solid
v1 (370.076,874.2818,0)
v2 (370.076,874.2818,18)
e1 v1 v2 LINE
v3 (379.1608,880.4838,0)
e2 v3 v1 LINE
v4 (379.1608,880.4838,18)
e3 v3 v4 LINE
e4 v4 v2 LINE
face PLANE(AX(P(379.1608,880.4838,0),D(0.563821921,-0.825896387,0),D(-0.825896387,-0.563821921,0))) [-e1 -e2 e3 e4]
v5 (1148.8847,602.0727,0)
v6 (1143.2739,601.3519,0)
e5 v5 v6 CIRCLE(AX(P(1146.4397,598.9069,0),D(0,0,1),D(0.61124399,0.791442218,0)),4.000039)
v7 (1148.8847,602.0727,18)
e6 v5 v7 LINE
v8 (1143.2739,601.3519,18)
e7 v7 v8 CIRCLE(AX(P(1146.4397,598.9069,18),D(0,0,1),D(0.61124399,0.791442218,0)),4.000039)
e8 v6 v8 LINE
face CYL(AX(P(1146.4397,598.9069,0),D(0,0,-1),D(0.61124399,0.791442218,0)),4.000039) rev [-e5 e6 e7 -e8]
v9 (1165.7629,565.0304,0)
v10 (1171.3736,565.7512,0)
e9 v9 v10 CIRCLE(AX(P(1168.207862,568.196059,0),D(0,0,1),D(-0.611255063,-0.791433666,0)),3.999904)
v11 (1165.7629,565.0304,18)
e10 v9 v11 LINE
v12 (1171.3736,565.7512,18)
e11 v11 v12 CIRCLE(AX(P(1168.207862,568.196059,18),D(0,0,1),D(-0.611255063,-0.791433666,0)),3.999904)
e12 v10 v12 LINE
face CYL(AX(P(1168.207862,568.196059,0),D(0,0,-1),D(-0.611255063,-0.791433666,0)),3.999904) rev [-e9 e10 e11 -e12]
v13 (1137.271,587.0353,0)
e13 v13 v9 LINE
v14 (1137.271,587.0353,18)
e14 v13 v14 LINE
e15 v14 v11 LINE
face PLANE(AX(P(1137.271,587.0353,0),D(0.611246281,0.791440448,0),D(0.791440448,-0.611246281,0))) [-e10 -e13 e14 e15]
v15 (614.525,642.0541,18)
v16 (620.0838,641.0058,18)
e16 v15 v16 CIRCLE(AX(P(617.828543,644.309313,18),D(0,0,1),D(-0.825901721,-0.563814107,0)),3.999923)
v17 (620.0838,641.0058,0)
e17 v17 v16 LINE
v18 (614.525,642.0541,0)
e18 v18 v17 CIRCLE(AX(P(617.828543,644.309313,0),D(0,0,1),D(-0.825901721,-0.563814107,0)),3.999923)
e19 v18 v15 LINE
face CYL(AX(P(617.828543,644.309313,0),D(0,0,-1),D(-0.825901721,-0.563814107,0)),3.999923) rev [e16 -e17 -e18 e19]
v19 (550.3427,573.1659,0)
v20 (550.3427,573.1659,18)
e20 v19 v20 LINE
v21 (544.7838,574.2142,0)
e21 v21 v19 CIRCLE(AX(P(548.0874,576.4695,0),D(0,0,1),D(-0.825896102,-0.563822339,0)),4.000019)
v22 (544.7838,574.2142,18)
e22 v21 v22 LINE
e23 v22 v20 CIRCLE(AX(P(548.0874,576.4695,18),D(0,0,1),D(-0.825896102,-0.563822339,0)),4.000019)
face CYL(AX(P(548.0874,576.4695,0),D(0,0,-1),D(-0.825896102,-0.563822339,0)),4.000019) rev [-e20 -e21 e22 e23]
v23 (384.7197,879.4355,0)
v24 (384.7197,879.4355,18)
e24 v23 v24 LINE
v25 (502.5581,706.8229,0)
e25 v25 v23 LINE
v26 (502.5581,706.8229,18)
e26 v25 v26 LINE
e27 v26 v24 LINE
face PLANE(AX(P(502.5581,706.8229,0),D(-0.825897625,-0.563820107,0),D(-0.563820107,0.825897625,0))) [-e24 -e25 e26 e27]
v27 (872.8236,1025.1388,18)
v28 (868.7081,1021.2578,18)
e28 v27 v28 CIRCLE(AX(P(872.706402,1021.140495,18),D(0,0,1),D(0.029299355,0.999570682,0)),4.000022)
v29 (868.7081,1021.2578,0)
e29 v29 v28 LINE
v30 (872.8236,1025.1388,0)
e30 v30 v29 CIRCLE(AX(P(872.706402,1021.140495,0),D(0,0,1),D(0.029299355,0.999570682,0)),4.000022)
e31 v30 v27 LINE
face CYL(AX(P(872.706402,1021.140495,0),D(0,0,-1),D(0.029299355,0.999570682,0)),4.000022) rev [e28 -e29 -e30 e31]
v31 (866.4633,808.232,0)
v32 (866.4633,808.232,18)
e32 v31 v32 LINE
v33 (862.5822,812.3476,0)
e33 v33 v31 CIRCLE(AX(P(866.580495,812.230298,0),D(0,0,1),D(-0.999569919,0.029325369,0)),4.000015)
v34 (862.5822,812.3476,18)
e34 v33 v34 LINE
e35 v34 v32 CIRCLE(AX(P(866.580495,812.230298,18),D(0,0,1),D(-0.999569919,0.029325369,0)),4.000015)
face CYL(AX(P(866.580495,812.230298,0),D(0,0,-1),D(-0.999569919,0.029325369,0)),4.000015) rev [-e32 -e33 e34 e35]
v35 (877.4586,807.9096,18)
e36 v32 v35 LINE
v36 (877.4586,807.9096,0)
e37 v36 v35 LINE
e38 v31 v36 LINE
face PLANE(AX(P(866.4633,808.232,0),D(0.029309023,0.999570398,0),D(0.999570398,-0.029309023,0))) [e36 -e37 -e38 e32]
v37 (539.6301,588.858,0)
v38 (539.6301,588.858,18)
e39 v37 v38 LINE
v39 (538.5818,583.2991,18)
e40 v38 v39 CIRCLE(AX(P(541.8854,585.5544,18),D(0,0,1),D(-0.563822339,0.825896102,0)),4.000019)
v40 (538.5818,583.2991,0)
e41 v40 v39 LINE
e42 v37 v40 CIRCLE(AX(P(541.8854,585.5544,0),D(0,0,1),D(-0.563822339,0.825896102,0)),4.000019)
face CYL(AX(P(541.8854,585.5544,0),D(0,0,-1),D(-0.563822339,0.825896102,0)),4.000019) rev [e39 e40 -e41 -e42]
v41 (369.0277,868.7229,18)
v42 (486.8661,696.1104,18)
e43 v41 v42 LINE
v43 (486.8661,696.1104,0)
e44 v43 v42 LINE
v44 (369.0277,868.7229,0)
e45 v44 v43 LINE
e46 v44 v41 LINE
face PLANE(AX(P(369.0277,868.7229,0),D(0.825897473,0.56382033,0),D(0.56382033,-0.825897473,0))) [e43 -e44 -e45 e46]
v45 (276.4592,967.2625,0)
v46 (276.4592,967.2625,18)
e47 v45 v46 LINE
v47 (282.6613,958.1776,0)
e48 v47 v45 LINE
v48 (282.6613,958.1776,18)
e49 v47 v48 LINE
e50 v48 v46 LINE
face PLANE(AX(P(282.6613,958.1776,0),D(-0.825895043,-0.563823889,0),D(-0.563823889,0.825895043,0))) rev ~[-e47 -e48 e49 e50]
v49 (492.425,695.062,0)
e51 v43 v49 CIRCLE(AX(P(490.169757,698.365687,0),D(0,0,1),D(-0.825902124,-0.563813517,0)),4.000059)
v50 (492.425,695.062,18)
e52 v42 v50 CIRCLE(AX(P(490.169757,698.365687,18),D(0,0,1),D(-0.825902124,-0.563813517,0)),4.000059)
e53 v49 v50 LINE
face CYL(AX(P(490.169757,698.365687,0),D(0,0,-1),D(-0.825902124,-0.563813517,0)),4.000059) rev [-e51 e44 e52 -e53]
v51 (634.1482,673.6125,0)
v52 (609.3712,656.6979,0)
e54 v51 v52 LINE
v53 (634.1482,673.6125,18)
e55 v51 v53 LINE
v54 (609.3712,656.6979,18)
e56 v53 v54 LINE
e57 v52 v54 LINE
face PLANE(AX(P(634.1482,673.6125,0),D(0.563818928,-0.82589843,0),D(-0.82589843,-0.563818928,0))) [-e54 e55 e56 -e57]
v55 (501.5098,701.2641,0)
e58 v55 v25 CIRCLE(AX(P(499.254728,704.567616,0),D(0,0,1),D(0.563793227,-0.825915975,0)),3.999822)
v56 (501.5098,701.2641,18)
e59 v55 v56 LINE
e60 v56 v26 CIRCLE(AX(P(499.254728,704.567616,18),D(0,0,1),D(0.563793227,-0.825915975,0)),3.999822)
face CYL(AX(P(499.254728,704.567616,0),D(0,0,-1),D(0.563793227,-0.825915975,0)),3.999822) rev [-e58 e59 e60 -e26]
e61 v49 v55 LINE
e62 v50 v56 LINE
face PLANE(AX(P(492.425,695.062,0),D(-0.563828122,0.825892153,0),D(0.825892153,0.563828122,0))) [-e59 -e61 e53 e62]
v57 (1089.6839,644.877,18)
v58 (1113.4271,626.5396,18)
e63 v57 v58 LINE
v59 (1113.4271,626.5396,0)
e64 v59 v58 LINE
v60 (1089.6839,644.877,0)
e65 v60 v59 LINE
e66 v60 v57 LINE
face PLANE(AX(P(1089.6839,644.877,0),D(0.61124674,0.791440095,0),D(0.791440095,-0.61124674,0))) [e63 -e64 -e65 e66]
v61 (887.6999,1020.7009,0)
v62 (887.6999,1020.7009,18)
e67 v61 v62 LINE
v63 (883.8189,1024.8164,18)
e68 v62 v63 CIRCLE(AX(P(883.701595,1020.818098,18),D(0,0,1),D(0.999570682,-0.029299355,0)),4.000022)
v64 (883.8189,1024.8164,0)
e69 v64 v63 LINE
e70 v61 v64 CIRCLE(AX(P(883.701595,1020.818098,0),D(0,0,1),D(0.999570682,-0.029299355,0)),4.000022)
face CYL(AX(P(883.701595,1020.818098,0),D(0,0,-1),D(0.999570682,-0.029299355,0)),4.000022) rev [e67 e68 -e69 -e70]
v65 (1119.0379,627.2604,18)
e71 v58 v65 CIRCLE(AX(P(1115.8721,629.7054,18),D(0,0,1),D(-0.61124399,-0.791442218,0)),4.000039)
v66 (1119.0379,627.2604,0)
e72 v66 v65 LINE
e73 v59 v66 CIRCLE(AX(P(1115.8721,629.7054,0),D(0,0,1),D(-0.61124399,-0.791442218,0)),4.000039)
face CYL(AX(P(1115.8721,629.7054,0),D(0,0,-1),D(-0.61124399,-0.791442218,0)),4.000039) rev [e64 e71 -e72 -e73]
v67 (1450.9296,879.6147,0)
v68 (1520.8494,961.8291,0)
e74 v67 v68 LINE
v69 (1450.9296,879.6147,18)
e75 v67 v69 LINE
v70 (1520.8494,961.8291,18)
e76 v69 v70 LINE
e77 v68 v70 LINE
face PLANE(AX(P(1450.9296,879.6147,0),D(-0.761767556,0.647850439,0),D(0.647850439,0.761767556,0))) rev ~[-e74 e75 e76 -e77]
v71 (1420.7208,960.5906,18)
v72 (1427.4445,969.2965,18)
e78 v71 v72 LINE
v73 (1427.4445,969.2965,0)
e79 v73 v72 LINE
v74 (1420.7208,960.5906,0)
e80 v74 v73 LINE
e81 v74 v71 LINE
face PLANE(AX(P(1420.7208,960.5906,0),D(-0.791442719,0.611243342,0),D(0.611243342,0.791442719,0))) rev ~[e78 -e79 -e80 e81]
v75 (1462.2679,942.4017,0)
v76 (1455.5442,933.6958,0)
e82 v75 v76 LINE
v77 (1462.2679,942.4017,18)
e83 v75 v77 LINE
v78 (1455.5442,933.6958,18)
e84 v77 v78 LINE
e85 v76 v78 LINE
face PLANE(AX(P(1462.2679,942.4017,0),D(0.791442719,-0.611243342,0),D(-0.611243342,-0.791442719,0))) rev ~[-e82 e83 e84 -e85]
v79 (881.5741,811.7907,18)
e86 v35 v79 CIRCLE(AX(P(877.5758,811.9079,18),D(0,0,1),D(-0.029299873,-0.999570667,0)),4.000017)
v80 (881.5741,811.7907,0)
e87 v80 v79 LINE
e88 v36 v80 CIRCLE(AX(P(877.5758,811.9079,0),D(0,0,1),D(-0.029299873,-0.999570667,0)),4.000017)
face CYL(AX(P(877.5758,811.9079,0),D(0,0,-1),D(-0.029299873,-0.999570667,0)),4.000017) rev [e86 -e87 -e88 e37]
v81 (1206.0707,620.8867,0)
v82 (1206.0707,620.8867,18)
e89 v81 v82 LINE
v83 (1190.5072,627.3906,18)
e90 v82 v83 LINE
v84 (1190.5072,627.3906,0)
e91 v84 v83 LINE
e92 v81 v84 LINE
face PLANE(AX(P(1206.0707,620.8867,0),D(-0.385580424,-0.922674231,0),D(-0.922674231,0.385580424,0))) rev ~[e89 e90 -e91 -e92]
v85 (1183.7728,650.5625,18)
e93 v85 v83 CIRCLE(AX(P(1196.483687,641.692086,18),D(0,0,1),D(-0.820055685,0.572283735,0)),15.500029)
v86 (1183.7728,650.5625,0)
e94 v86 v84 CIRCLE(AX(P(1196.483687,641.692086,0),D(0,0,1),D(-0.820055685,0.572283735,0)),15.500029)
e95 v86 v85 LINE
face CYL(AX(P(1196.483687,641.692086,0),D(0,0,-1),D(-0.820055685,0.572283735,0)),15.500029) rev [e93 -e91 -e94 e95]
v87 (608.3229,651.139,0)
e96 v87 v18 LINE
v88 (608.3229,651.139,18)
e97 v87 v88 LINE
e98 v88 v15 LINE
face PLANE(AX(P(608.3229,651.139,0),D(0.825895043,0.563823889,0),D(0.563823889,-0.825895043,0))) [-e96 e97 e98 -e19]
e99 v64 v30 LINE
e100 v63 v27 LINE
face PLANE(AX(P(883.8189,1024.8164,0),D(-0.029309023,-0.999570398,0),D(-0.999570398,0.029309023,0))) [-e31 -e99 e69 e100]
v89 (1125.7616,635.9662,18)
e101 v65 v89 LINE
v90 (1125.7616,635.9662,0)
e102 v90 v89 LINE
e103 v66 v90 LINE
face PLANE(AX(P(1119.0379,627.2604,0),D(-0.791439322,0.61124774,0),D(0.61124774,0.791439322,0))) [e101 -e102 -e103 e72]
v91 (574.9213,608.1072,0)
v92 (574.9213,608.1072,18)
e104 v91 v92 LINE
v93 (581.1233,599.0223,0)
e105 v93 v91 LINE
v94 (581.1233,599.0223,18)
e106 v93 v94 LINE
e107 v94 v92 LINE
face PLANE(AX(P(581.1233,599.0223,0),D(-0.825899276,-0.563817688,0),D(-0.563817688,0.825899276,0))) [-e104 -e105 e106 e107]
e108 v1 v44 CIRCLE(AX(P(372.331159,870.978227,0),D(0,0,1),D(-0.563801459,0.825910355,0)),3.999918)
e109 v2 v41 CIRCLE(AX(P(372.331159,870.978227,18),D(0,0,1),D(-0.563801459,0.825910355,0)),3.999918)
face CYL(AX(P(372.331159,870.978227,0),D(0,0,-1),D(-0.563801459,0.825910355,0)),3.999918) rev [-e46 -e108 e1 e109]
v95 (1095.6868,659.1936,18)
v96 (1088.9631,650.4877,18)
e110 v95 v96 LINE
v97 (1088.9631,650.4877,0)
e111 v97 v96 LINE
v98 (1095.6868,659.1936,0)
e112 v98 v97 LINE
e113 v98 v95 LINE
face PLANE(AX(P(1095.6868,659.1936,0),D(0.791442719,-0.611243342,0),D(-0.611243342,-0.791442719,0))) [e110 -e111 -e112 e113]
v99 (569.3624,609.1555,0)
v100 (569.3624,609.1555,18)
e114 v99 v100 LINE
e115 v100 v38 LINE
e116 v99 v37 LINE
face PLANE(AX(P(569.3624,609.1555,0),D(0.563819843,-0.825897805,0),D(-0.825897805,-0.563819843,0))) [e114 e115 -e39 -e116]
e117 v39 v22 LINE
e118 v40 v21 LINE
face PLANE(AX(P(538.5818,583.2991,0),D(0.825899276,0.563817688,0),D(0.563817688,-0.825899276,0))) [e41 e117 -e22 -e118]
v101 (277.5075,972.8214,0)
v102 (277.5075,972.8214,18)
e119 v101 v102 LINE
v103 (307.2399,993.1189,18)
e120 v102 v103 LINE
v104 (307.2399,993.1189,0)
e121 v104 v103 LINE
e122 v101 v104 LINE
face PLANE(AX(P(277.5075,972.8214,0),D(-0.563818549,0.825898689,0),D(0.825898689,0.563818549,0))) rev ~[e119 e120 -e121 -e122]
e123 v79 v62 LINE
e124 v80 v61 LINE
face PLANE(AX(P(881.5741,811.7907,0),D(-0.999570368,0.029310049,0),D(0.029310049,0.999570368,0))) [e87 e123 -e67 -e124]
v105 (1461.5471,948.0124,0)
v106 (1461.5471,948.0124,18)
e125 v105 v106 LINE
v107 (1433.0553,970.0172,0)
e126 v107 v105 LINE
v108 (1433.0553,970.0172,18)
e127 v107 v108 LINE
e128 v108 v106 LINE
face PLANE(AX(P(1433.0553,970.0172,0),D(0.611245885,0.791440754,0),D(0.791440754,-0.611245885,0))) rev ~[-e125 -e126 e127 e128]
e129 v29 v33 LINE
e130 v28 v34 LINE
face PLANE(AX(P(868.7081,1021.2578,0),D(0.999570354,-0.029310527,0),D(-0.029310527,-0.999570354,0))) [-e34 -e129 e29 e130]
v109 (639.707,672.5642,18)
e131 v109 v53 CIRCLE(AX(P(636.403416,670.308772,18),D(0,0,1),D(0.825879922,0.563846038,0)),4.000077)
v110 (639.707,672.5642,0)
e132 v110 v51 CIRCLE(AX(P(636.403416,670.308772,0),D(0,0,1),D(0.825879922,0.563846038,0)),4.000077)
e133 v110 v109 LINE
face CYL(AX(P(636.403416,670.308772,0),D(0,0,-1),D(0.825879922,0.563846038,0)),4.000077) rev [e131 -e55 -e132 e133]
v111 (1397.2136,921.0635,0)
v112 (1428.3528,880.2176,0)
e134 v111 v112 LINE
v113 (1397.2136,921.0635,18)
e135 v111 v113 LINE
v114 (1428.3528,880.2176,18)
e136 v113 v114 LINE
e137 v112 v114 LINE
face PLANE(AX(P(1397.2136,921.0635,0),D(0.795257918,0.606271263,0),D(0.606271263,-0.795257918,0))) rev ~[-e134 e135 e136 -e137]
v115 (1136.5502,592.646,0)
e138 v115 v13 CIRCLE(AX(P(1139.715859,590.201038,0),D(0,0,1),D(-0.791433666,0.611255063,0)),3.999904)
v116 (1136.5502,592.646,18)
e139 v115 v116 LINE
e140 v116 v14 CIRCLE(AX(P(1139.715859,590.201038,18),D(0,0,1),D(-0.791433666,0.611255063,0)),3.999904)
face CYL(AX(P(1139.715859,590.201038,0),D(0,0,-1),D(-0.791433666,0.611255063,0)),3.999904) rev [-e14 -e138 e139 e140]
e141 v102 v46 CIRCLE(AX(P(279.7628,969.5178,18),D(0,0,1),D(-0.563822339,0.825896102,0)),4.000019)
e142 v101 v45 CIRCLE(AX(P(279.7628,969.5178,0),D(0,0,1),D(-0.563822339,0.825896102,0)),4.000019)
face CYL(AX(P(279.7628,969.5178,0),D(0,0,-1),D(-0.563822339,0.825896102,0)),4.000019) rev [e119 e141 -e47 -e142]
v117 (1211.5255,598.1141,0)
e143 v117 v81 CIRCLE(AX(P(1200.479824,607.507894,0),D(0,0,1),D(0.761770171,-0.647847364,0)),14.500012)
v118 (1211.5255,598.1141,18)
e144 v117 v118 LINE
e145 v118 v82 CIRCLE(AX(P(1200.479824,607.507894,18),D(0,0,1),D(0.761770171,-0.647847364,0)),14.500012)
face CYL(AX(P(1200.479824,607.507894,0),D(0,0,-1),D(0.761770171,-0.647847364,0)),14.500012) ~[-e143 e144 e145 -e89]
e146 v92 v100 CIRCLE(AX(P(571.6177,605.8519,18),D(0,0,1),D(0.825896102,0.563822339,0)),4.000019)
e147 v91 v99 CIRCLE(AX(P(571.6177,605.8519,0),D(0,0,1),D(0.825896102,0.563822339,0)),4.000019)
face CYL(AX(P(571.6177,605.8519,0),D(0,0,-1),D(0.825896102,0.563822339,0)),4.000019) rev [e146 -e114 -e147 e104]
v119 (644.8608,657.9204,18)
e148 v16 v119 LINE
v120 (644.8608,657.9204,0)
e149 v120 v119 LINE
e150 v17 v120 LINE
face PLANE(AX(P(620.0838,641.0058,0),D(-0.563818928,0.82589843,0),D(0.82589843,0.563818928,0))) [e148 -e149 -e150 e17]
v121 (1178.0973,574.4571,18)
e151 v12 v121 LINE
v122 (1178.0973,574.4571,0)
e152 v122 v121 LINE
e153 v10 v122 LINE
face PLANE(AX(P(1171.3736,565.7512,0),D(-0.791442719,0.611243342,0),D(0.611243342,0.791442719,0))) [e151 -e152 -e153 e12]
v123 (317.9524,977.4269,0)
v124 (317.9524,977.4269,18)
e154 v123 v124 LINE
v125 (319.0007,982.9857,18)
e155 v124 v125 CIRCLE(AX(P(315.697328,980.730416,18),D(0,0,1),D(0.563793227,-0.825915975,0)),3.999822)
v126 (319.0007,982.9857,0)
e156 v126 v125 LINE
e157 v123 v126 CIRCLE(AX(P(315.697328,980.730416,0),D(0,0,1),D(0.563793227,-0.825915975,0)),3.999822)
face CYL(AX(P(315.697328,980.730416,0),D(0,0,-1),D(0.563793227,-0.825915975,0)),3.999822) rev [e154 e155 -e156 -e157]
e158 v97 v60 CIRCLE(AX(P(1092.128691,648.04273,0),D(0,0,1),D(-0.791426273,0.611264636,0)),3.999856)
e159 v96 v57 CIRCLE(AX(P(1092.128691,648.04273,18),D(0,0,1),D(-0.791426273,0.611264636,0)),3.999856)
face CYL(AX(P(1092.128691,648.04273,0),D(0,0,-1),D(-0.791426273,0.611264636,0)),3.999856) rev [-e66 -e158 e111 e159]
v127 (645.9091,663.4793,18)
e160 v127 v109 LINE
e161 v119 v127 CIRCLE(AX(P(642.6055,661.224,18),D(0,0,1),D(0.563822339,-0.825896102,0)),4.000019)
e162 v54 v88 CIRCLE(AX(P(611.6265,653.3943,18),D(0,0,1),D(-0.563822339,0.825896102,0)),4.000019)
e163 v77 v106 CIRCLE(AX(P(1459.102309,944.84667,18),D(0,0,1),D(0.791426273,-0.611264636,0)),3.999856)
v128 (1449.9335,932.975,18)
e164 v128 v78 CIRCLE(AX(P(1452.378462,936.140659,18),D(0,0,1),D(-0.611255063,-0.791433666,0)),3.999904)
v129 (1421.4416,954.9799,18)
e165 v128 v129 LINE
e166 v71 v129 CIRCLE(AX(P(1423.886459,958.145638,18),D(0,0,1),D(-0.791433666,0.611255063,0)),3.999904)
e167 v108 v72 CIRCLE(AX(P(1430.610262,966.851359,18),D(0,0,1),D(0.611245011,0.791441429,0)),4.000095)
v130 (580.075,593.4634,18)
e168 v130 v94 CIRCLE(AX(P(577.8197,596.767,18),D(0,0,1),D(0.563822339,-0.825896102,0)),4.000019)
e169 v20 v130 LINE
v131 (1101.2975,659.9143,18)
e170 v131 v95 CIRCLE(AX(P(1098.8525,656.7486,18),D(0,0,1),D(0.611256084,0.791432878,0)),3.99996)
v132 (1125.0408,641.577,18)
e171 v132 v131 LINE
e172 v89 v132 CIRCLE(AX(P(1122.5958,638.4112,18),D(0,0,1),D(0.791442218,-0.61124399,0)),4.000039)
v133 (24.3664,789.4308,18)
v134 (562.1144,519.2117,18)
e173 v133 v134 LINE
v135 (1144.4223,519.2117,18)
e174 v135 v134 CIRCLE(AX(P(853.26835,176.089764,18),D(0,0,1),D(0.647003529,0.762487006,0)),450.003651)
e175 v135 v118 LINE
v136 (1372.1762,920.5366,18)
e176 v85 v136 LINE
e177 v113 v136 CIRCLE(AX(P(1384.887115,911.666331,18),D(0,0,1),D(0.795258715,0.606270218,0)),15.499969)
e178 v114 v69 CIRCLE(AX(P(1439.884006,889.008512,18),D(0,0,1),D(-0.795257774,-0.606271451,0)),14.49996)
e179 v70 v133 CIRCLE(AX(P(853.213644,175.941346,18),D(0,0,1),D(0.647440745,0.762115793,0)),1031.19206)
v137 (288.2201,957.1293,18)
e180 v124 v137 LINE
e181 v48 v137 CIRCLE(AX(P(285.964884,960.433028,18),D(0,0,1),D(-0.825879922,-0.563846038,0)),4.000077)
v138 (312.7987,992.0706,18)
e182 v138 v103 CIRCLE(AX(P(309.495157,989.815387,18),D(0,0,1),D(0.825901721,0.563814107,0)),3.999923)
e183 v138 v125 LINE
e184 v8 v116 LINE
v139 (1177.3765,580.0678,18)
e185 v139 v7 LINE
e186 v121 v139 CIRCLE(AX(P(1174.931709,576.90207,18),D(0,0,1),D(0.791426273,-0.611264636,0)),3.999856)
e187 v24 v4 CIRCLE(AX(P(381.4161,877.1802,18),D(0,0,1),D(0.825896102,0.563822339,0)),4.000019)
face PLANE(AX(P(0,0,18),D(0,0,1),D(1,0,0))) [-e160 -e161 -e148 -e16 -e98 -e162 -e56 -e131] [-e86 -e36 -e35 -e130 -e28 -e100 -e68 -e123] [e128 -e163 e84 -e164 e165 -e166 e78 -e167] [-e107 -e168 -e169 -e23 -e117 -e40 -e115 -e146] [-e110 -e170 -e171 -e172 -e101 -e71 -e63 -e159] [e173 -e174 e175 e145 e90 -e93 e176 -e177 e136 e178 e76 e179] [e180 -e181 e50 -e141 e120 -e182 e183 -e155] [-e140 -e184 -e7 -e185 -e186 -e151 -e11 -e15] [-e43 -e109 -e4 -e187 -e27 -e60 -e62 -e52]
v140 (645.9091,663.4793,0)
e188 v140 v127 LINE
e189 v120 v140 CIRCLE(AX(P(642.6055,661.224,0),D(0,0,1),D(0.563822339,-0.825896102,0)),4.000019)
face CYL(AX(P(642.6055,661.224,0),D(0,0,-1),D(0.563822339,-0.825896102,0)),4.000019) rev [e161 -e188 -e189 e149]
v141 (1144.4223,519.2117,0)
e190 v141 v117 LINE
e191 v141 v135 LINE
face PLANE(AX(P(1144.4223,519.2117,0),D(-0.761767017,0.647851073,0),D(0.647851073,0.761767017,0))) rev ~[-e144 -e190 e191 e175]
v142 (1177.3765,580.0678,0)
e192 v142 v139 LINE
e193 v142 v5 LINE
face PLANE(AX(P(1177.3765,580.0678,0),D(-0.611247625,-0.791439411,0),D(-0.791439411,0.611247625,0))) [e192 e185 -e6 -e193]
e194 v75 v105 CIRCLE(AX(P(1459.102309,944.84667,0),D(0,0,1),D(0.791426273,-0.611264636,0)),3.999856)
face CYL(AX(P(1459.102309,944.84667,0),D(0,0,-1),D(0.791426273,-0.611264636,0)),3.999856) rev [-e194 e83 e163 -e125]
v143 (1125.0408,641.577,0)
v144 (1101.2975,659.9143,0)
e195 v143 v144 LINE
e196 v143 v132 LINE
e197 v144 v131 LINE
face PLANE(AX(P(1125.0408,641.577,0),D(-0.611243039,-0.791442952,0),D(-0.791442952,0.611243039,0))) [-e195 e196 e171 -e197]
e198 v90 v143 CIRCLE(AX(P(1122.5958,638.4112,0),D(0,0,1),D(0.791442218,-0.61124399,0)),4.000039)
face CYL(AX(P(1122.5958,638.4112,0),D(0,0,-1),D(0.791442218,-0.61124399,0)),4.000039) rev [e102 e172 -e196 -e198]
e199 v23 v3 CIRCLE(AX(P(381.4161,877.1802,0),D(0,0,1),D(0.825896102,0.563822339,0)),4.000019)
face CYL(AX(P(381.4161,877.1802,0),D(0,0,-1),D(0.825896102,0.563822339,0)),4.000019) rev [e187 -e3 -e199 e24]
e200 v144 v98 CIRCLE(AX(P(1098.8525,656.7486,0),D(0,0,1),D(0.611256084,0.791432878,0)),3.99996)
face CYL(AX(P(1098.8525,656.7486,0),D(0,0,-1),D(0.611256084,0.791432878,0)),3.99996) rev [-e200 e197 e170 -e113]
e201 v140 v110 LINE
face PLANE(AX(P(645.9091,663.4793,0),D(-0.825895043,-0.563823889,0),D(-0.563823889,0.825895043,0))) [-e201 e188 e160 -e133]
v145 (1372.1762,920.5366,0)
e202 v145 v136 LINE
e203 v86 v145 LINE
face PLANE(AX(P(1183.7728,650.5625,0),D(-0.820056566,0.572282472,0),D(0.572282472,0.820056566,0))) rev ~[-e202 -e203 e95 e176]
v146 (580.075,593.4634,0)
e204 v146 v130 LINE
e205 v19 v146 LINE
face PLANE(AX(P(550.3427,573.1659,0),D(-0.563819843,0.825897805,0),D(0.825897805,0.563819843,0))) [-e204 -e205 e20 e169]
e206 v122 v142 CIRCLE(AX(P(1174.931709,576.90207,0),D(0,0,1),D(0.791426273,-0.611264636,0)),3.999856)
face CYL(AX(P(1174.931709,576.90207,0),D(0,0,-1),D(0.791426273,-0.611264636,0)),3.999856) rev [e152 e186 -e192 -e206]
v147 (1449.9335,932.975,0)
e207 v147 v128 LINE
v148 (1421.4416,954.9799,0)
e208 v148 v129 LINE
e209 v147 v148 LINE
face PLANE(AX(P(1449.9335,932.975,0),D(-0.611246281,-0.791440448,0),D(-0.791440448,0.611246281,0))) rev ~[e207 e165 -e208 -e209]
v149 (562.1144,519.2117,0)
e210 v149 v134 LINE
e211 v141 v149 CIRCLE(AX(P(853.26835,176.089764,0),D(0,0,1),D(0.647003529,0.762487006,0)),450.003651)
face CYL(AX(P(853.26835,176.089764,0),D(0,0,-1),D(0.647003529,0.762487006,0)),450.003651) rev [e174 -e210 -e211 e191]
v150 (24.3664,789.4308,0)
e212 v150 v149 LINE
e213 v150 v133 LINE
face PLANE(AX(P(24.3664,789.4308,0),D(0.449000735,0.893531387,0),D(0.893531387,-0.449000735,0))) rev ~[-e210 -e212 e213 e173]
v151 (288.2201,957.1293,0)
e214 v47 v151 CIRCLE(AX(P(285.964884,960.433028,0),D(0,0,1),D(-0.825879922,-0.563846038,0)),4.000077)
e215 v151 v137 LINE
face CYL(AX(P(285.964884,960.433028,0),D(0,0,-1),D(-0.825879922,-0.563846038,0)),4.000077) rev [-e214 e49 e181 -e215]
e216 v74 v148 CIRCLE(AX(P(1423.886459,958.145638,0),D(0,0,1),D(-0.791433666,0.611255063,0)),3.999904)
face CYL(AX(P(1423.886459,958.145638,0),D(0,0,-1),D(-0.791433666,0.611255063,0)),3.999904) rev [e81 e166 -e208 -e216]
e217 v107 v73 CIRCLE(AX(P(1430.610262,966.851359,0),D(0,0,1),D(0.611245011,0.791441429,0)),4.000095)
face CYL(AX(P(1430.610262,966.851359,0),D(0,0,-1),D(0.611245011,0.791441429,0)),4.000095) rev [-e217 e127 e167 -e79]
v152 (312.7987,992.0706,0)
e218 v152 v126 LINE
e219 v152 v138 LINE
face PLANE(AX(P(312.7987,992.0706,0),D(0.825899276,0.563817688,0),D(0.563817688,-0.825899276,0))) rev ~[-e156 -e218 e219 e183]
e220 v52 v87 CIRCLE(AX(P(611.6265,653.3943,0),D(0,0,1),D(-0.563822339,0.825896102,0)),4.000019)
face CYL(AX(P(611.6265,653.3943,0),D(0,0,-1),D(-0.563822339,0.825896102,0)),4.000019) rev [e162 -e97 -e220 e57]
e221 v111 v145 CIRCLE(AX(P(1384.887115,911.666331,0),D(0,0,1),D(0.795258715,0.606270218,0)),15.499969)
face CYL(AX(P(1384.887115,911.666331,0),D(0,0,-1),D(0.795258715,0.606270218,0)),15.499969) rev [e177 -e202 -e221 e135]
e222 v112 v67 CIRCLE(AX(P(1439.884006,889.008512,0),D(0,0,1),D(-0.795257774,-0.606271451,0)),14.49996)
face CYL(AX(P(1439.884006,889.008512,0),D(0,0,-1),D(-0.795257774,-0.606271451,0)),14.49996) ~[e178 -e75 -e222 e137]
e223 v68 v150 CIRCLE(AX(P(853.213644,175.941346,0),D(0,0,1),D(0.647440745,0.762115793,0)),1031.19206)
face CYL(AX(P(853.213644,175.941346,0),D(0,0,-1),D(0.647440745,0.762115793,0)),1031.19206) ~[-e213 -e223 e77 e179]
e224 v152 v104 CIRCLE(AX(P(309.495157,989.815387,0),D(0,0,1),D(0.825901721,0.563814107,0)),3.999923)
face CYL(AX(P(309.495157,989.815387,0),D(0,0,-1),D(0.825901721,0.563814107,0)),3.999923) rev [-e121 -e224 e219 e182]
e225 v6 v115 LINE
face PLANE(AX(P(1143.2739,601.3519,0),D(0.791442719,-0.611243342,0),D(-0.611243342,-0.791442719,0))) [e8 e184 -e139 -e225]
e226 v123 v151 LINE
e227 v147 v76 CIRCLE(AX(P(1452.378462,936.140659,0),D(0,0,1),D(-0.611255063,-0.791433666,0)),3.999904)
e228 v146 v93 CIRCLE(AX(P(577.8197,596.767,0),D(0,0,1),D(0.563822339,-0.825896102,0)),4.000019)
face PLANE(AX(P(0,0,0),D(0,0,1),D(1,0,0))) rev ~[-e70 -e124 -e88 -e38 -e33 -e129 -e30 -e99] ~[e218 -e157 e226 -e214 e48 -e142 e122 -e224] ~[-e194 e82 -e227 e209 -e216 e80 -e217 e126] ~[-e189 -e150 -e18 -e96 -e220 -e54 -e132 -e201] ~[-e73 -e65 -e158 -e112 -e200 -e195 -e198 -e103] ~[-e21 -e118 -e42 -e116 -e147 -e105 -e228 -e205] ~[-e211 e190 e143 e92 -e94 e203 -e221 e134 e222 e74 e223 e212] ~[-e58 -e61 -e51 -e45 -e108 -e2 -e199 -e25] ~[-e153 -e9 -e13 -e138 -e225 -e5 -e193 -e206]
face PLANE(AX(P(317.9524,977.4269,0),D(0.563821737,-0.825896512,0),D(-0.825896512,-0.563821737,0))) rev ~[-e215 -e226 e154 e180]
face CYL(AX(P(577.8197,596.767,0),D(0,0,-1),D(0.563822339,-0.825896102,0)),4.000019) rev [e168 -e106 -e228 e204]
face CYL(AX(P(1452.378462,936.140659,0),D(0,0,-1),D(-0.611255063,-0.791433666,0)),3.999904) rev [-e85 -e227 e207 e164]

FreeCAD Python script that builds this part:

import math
import FreeCAD as App
import Part
import Sketcher
Q = App.Units.Quantity

doc = App.newDocument("Part")
body = doc.addObject("PartDesign::Body", "Body")

# Sketch on XY plane
sketch1 = body.newObject("Sketcher::SketchObject", "Sketch")
sketch1.AttachmentSupport = (doc.getObject("XY_Plane"), [""])
sketch1.MapMode = "FlatFace"
sketch1.addGeometry(Part.ArcOfCircle(Part.Circle(App.Vector(1385, 912, 0), App.Vector(0, 0, 1), 15), math.radians(37), math.radians(145)), False)
sketch1.addGeometry(Part.LineSegment(App.Vector(1397, 921, 0), App.Vector(1428, 880, 0)), False)
sketch1.addGeometry(Part.ArcOfCircle(Part.Circle(App.Vector(1440, 889, 0), App.Vector(0, 0, 1), 14), math.radians(-143), math.radians(-40)), False)
sketch1.addGeometry(Part.LineSegment(App.Vector(1451, 880, 0), App.Vector(1521, 962, 0)), False)
sketch1.addGeometry(Part.ArcOfCircle(Part.Circle(App.Vector(853, 176, 0), App.Vector(0, 0, 1), 1031), math.radians(50), math.radians(143)), False)
sketch1.addGeometry(Part.LineSegment(App.Vector(24, 789, 0), App.Vector(562, 519, 0)), False)
sketch1.addGeometry(Part.ArcOfCircle(Part.Circle(App.Vector(853, 176, 0), App.Vector(0, 0, 1), 450), math.radians(50), math.radians(130)), False)
sketch1.addGeometry(Part.LineSegment(App.Vector(1144, 519, 0), App.Vector(1212, 598, 0)), False)
sketch1.addGeometry(Part.ArcOfCircle(Part.Circle(App.Vector(1200, 608, 0), App.Vector(0, 0, 1), 15), math.radians(-40), math.radians(67)), False)
sketch1.addGeometry(Part.LineSegment(App.Vector(1206, 621, 0), App.Vector(1191, 627, 0)), False)
sketch1.addGeometry(Part.ArcOfCircle(Part.Circle(App.Vector(1196, 642, 0), App.Vector(0, 0, 1), 15), math.radians(145), math.radians(247)), False)
sketch1.addGeometry(Part.LineSegment(App.Vector(1184, 651, 0), App.Vector(1372, 921, 0)), False)
sketch1.addConstraint(Sketcher.Constraint("Tangent", 0, 1, 1, 1))
sketch1.addConstraint(Sketcher.Constraint("Tangent", 1, 2, 2, 1))
sketch1.addConstraint(Sketcher.Constraint("Tangent", 2, 2, 3, 1))
sketch1.addConstraint(Sketcher.Constraint("Coincident", 3, 2, 4, 1))
sketch1.addConstraint(Sketcher.Constraint("Coincident", 4, 2, 5, 1))
sketch1.addConstraint(Sketcher.Constraint("Coincident", 5, 2, 6, 2))
sketch1.addConstraint(Sketcher.Constraint("Coincident", 6, 1, 7, 1))
sketch1.addConstraint(Sketcher.Constraint("Tangent", 7, 2, 8, 1))
sketch1.addConstraint(Sketcher.Constraint("Tangent", 8, 2, 9, 1))
sketch1.addConstraint(Sketcher.Constraint("Tangent", 9, 2, 10, 2))
sketch1.addConstraint(Sketcher.Constraint("Tangent", 10, 1, 11, 1))
sketch1.addConstraint(Sketcher.Constraint("Tangent", 11, 2, 0, 2))
sketch1.addConstraint(Sketcher.Constraint("Equal", 2, 8))
sketch1.addConstraint(Sketcher.Constraint("Equal", 0, 10))
sketch1.addConstraint(Sketcher.Constraint("Parallel", 3, 7))
sketch1.addConstraint(Sketcher.Constraint("Horizontal", 5, 2, 6, 1))
sketch1.addConstraint(Sketcher.Constraint("Radius", 0, Q("15.5 mm")))
sketch1.addConstraint(Sketcher.Constraint("Radius", 2, Q("14.5 mm")))
sketch1.addConstraint(Sketcher.Constraint("Angle", 1, Q("-52.6796 deg")))
sketch1.addConstraint(Sketcher.Constraint("Angle", 3, Q("49.6203 deg")))
sketch1.addConstraint(Sketcher.Constraint("Angle", 5, Q("-26.6796 deg")))
sketch1.addConstraint(Sketcher.Constraint("Angle", 9, Q("157.3202 deg")))
sketch1.addConstraint(Sketcher.Constraint("Angle", 11, Q("55.0905 deg")))
sketch1.addConstraint(Sketcher.Constraint("Radius", 4, Q("1031.1922 mm")))
sketch1.addConstraint(Sketcher.Constraint("Radius", 6, Q("450.0035 mm")))
sketch1.addConstraint(Sketcher.Constraint("DistanceY", -1, 1, 6, 3, Q("176.09 mm")))
sketch1.addConstraint(Sketcher.Constraint("DistanceX", 4, 3, 10, 3, Q("343.27 mm")))
sketch1.addConstraint(Sketcher.Constraint("DistanceX", 10, 3, 0, 1, Q("200.73 mm")))
sketch1.addConstraint(Sketcher.Constraint("DistanceX", -1, 1, 0, 3, Q("1384.887 mm")))
sketch1.addConstraint(Sketcher.Constraint("DistanceX", -1, 1, 2, 3, Q("1439.884 mm")))
sketch1.addConstraint(Sketcher.Constraint("DistanceY", -1, 1, 8, 3, Q("607.508 mm")))
sketch1.addConstraint(Sketcher.Constraint("DistanceY", -1, 1, 10, 3, Q("641.692 mm")))
sketch1.addConstraint(Sketcher.Constraint("DistanceY", -1, 1, 3, 2, Q("961.829 mm")))
sketch1.addConstraint(Sketcher.Constraint("DistanceX", 5, 2, 6, 3, Q("291.154 mm")))
pad1 = body.newObject("PartDesign::Pad", "Pad")
pad1.Profile = sketch1
pad1.Length = 18

# Sketch on XY plane
sketch2 = body.newObject("Sketcher::SketchObject", "Sketch001")
sketch2.AttachmentSupport = (doc.getObject("XY_Plane"), [""])
sketch2.MapMode = "FlatFace"
sketch2.addGeometry(Part.LineSegment(App.Vector(1421.4, 955, 0), App.Vector(1449.9, 933, 0)), False)
sketch2.addGeometry(Part.ArcOfCircle(Part.Circle(App.Vector(1452.4, 936.1, 0), App.Vector(0, 0, 1), 4), math.radians(-128), math.radians(-38)), False)
sketch2.addGeometry(Part.LineSegment(App.Vector(1455.5, 933.7, 0), App.Vector(1462.3, 942.4, 0)), False)
sketch2.addGeometry(Part.ArcOfCircle(Part.Circle(App.Vector(1459.1, 944.8, 0), App.Vector(0, 0, 1), 4), math.radians(-38), math.radians(52)), False)
sketch2.addGeometry(Part.LineSegment(App.Vector(1461.5, 948, 0), App.Vector(1433.1, 970, 0)), False)
sketch2.addGeometry(Part.ArcOfCircle(Part.Circle(App.Vector(1430.6, 966.9, 0), App.Vector(0, 0, 1), 4), math.radians(52), math.radians(142)), False)
sketch2.addGeometry(Part.LineSegment(App.Vector(1427.4, 969.3, 0), App.Vector(1420.7, 960.6, 0)), False)
sketch2.addGeometry(Part.ArcOfCircle(Part.Circle(App.Vector(1423.9, 958.1, 0), App.Vector(0, 0, 1), 4), math.radians(142), math.radians(232)), False)
sketch2.addGeometry(Part.ArcOfCircle(Part.Circle(App.Vector(577.8, 596.8, 0), App.Vector(0, 0, 1), 4), math.radians(-56), math.radians(34)), False)
sketch2.addGeometry(Part.LineSegment(App.Vector(581.1, 599, 0), App.Vector(574.9, 608.1, 0)), False)
sketch2.addGeometry(Part.ArcOfCircle(Part.Circle(App.Vector(571.6, 605.9, 0), App.Vector(0, 0, 1), 4), math.radians(34), math.radians(124)), False)
sketch2.addGeometry(Part.LineSegment(App.Vector(569.4, 609.2, 0), App.Vector(539.6, 588.9, 0)), False)
sketch2.addGeometry(Part.ArcOfCircle(Part.Circle(App.Vector(541.9, 585.6, 0), App.Vector(0, 0, 1), 4), math.radians(124), math.radians(214)), False)
sketch2.addGeometry(Part.LineSegment(App.Vector(538.6, 583.3, 0), App.Vector(544.8, 574.2, 0)), False)
sketch2.addGeometry(Part.ArcOfCircle(Part.Circle(App.Vector(548.1, 576.5, 0), App.Vector(0, 0, 1), 4), math.radians(-146), math.radians(-56)), False)
sketch2.addGeometry(Part.LineSegment(App.Vector(550.3, 573.2, 0), App.Vector(580.1, 593.5, 0)), False)
sketch2.addGeometry(Part.ArcOfCircle(Part.Circle(App.Vector(1168.2, 568.2, 0), App.Vector(0, 0, 1), 4), math.radians(-128), math.radians(-38)), False)
sketch2.addGeometry(Part.LineSegment(App.Vector(1171.4, 565.8, 0), App.Vector(1178.1, 574.5, 0)), False)
sketch2.addGeometry(Part.ArcOfCircle(Part.Circle(App.Vector(1174.9, 576.9, 0), App.Vector(0, 0, 1), 4), math.radians(-38), math.radians(52)), False)
sketch2.addGeometry(Part.LineSegment(App.Vector(1177.4, 580.1, 0), App.Vector(1148.9, 602.1, 0)), False)
sketch2.addGeometry(Part.ArcOfCircle(Part.Circle(App.Vector(1146.4, 598.9, 0), App.Vector(0, 0, 1), 4), math.radians(52), math.radians(142)), False)
sketch2.addGeometry(Part.LineSegment(App.Vector(1143.3, 601.4, 0), App.Vector(1136.6, 592.6, 0)), False)
sketch2.addGeometry(Part.ArcOfCircle(Part.Circle(App.Vector(1139.7, 590.2, 0), App.Vector(0, 0, 1), 4), math.radians(142), math.radians(232)), False)
sketch2.addGeometry(Part.LineSegment(App.Vector(1137.3, 587, 0), App.Vector(1165.8, 565, 0)), False)
sketch2.addGeometry(Part.LineSegment(App.Vector(319, 983, 0), App.Vector(312.8, 992.1, 0)), False)
sketch2.addGeometry(Part.ArcOfCircle(Part.Circle(App.Vector(309.5, 989.8, 0), App.Vector(0, 0, 1), 4), math.radians(34), math.radians(124)), False)
sketch2.addGeometry(Part.LineSegment(App.Vector(307.2, 993.1, 0), App.Vector(277.5, 972.8, 0)), False)
sketch2.addGeometry(Part.ArcOfCircle(Part.Circle(App.Vector(279.8, 969.5, 0), App.Vector(0, 0, 1), 4), math.radians(124), math.radians(214)), False)
sketch2.addGeometry(Part.LineSegment(App.Vector(276.5, 967.3, 0), App.Vector(282.7, 958.2, 0)), False)
sketch2.addGeometry(Part.ArcOfCircle(Part.Circle(App.Vector(286, 960.4, 0), App.Vector(0, 0, 1), 4), math.radians(-146), math.radians(-56)), False)
sketch2.addGeometry(Part.LineSegment(App.Vector(288.2, 957.1, 0), App.Vector(318, 977.4, 0)), False)
sketch2.addGeometry(Part.ArcOfCircle(Part.Circle(App.Vector(315.7, 980.7, 0), App.Vector(0, 0, 1), 4), math.radians(-56), math.radians(34)), False)
sketch2.addGeometry(Part.LineSegment(App.Vector(866.5, 808.2, 0), App.Vector(877.5, 807.9, 0)), False)
sketch2.addGeometry(Part.ArcOfCircle(Part.Circle(App.Vector(877.6, 811.9, 0), App.Vector(0, 0, 1), 4), math.radians(-92), math.radians(-2)), False)
sketch2.addGeometry(Part.LineSegment(App.Vector(881.6, 811.8, 0), App.Vector(887.7, 1020.7, 0)), False)
sketch2.addGeometry(Part.ArcOfCircle(Part.Circle(App.Vector(883.7, 1020.8, 0), App.Vector(0, 0, 1), 4), math.radians(-2), math.radians(88)), False)
sketch2.addGeometry(Part.LineSegment(App.Vector(883.8, 1024.8, 0), App.Vector(872.8, 1025.1, 0)), False)
sketch2.addGeometry(Part.ArcOfCircle(Part.Circle(App.Vector(872.7, 1021.1, 0), App.Vector(0, 0, 1), 4), math.radians(88), math.radians(178)), False)
sketch2.addGeometry(Part.LineSegment(App.Vector(868.7, 1021.3, 0), App.Vector(862.6, 812.3, 0)), False)
sketch2.addGeometry(Part.ArcOfCircle(Part.Circle(App.Vector(866.6, 812.2, 0), App.Vector(0, 0, 1), 4), math.radians(178), math.radians(268)), False)
sketch2.addGeometry(Part.LineSegment(App.Vector(379.2, 880.5, 0), App.Vector(370.1, 874.3, 0)), False)
sketch2.addGeometry(Part.ArcOfCircle(Part.Circle(App.Vector(372.3, 871, 0), App.Vector(0, 0, 1), 4), math.radians(124), math.radians(214)), False)
sketch2.addGeometry(Part.LineSegment(App.Vector(369, 868.7, 0), App.Vector(486.9, 696.1, 0)), False)
sketch2.addGeometry(Part.ArcOfCircle(Part.Circle(App.Vector(490.2, 698.4, 0), App.Vector(0, 0, 1), 4), math.radians(-146), math.radians(-56)), False)
sketch2.addGeometry(Part.LineSegment(App.Vector(492.4, 695.1, 0), App.Vector(501.5, 701.3, 0)), False)
sketch2.addGeometry(Part.ArcOfCircle(Part.Circle(App.Vector(499.3, 704.6, 0), App.Vector(0, 0, 1), 4), math.radians(-56), math.radians(34)), False)
sketch2.addGeometry(Part.LineSegment(App.Vector(502.6, 706.8, 0), App.Vector(384.7, 879.4, 0)), False)
sketch2.addGeometry(Part.ArcOfCircle(Part.Circle(App.Vector(381.4, 877.2, 0), App.Vector(0, 0, 1), 4), math.radians(34), math.radians(124)), False)
sketch2.addGeometry(Part.LineSegment(App.Vector(1125, 641.6, 0), App.Vector(1101.3, 659.9, 0)), False)
sketch2.addGeometry(Part.ArcOfCircle(Part.Circle(App.Vector(1098.9, 656.7, 0), App.Vector(0, 0, 1), 4), math.radians(52), math.radians(142)), False)
sketch2.addGeometry(Part.LineSegment(App.Vector(1095.7, 659.2, 0), App.Vector(1089, 650.5, 0)), False)
sketch2.addGeometry(Part.ArcOfCircle(Part.Circle(App.Vector(1092.1, 648, 0), App.Vector(0, 0, 1), 4), math.radians(142), math.radians(232)), False)
sketch2.addGeometry(Part.LineSegment(App.Vector(1089.7, 644.9, 0), App.Vector(1113.4, 626.5, 0)), False)
sketch2.addGeometry(Part.ArcOfCircle(Part.Circle(App.Vector(1115.9, 629.7, 0), App.Vector(0, 0, 1), 4), math.radians(-128), math.radians(-38)), False)
sketch2.addGeometry(Part.LineSegment(App.Vector(1119, 627.3, 0), App.Vector(1125.8, 636, 0)), False)
sketch2.addGeometry(Part.ArcOfCircle(Part.Circle(App.Vector(1122.6, 638.4, 0), App.Vector(0, 0, 1), 4), math.radians(-38), math.radians(52)), False)
sketch2.addGeometry(Part.ArcOfCircle(Part.Circle(App.Vector(617.8, 644.3, 0), App.Vector(0, 0, 1), 4), math.radians(-146), math.radians(-56)), False)
sketch2.addGeometry(Part.LineSegment(App.Vector(620.1, 641, 0), App.Vector(644.9, 657.9, 0)), False)
sketch2.addGeometry(Part.ArcOfCircle(Part.Circle(App.Vector(642.6, 661.2, 0), App.Vector(0, 0, 1), 4), math.radians(-56), math.radians(34)), False)
sketch2.addGeometry(Part.LineSegment(App.Vector(645.9, 663.5, 0), App.Vector(639.7, 672.6, 0)), False)
sketch2.addGeometry(Part.ArcOfCircle(Part.Circle(App.Vector(636.4, 670.3, 0), App.Vector(0, 0, 1), 4), math.radians(34), math.radians(124)), False)
sketch2.addGeometry(Part.LineSegment(App.Vector(634.1, 673.6, 0), App.Vector(609.4, 656.7, 0)), False)
sketch2.addGeometry(Part.ArcOfCircle(Part.Circle(App.Vector(611.6, 653.4, 0), App.Vector(0, 0, 1), 4), math.radians(124), math.radians(214)), False)
sketch2.addGeometry(Part.LineSegment(App.Vector(608.3, 651.1, 0), App.Vector(614.5, 642.1, 0)), False)
sketch2.addConstraint(Sketcher.Constraint("Tangent", 0, 2, 1, 1))
sketch2.addConstraint(Sketcher.Constraint("Tangent", 1, 2, 2, 1))
sketch2.addConstraint(Sketcher.Constraint("Tangent", 2, 2, 3, 1))
sketch2.addConstraint(Sketcher.Constraint("Tangent", 3, 2, 4, 1))
sketch2.addConstraint(Sketcher.Constraint("Tangent", 4, 2, 5, 1))
sketch2.addConstraint(Sketcher.Constraint("Tangent", 5, 2, 6, 1))
sketch2.addConstraint(Sketcher.Constraint("Tangent", 6, 2, 7, 1))
sketch2.addConstraint(Sketcher.Constraint("Tangent", 7, 2, 0, 1))
sketch2.addConstraint(Sketcher.Constraint("Tangent", 8, 2, 9, 1))
sketch2.addConstraint(Sketcher.Constraint("Tangent", 9, 2, 10, 1))
sketch2.addConstraint(Sketcher.Constraint("Tangent", 10, 2, 11, 1))
sketch2.addConstraint(Sketcher.Constraint("Tangent", 11, 2, 12, 1))
sketch2.addConstraint(Sketcher.Constraint("Tangent", 12, 2, 13, 1))
sketch2.addConstraint(Sketcher.Constraint("Tangent", 13, 2, 14, 1))
sketch2.addConstraint(Sketcher.Constraint("Tangent", 14, 2, 15, 1))
sketch2.addConstraint(Sketcher.Constraint("Tangent", 15, 2, 8, 1))
sketch2.addConstraint(Sketcher.Constraint("Tangent", 16, 2, 17, 1))
sketch2.addConstraint(Sketcher.Constraint("Tangent", 17, 2, 18, 1))
sketch2.addConstraint(Sketcher.Constraint("Tangent", 18, 2, 19, 1))
sketch2.addConstraint(Sketcher.Constraint("Tangent", 19, 2, 20, 1))
sketch2.addConstraint(Sketcher.Constraint("Tangent", 20, 2, 21, 1))
sketch2.addConstraint(Sketcher.Constraint("Tangent", 21, 2, 22, 1))
sketch2.addConstraint(Sketcher.Constraint("Tangent", 22, 2, 23, 1))
sketch2.addConstraint(Sketcher.Constraint("Tangent", 23, 2, 16, 1))
sketch2.addConstraint(Sketcher.Constraint("Tangent", 24, 2, 25, 1))
sketch2.addConstraint(Sketcher.Constraint("Tangent", 25, 2, 26, 1))
sketch2.addConstraint(Sketcher.Constraint("Tangent", 26, 2, 27, 1))
sketch2.addConstraint(Sketcher.Constraint("Tangent", 27, 2, 28, 1))
sketch2.addConstraint(Sketcher.Constraint("Tangent", 28, 2, 29, 1))
sketch2.addConstraint(Sketcher.Constraint("Tangent", 29, 2, 30, 1))
sketch2.addConstraint(Sketcher.Constraint("Tangent", 30, 2, 31, 1))
sketch2.addConstraint(Sketcher.Constraint("Tangent", 31, 2, 24, 1))
sketch2.addConstraint(Sketcher.Constraint("Tangent", 32, 2, 33, 1))
sketch2.addConstraint(Sketcher.Constraint("Tangent", 33, 2, 34, 1))
sketch2.addConstraint(Sketcher.Constraint("Tangent", 34, 2, 35, 1))
sketch2.addConstraint(Sketcher.Constraint("Tangent", 35, 2, 36, 1))
sketch2.addConstraint(Sketcher.Constraint("Tangent", 36, 2, 37, 1))
sketch2.addConstraint(Sketcher.Constraint("Tangent", 37, 2, 38, 1))
sketch2.addConstraint(Sketcher.Constraint("Tangent", 38, 2, 39, 1))
sketch2.addConstraint(Sketcher.Constraint("Tangent", 39, 2, 32, 1))
sketch2.addConstraint(Sketcher.Constraint("Tangent", 40, 2, 41, 1))
sketch2.addConstraint(Sketcher.Constraint("Tangent", 41, 2, 42, 1))
sketch2.addConstraint(Sketcher.Constraint("Tangent", 42, 2, 43, 1))
sketch2.addConstraint(Sketcher.Constraint("Tangent", 43, 2, 44, 1))
sketch2.addConstraint(Sketcher.Constraint("Tangent", 44, 2, 45, 1))
sketch2.addConstraint(Sketcher.Constraint("Tangent", 45, 2, 46, 1))
sketch2.addConstraint(Sketcher.Constraint("Tangent", 46, 2, 47, 1))
sketch2.addConstraint(Sketcher.Constraint("Tangent", 47, 2, 40, 1))
sketch2.addConstraint(Sketcher.Constraint("Tangent", 48, 2, 49, 1))
sketch2.addConstraint(Sketcher.Constraint("Tangent", 49, 2, 50, 1))
sketch2.addConstraint(Sketcher.Constraint("Tangent", 50, 2, 51, 1))
sketch2.addConstraint(Sketcher.Constraint("Tangent", 51, 2, 52, 1))
sketch2.addConstraint(Sketcher.Constraint("Tangent", 52, 2, 53, 1))
sketch2.addConstraint(Sketcher.Constraint("Tangent", 53, 2, 54, 1))
sketch2.addConstraint(Sketcher.Constraint("Tangent", 54, 2, 55, 1))
sketch2.addConstraint(Sketcher.Constraint("Tangent", 55, 2, 48, 1))
sketch2.addConstraint(Sketcher.Constraint("Tangent", 56, 2, 57, 1))
sketch2.addConstraint(Sketcher.Constraint("Tangent", 57, 2, 58, 1))
sketch2.addConstraint(Sketcher.Constraint("Tangent", 58, 2, 59, 1))
sketch2.addConstraint(Sketcher.Constraint("Tangent", 59, 2, 60, 1))
sketch2.addConstraint(Sketcher.Constraint("Tangent", 60, 2, 61, 1))
sketch2.addConstraint(Sketcher.Constraint("Tangent", 61, 2, 62, 1))
sketch2.addConstraint(Sketcher.Constraint("Tangent", 62, 2, 63, 1))
sketch2.addConstraint(Sketcher.Constraint("Tangent", 63, 2, 56, 1))
sketch2.addConstraint(Sketcher.Constraint("Equal", 1, 3))
sketch2.addConstraint(Sketcher.Constraint("Equal", 3, 5))
sketch2.addConstraint(Sketcher.Constraint("Equal", 5, 7))
sketch2.addConstraint(Sketcher.Constraint("Equal", 7, 8))
sketch2.addConstraint(Sketcher.Constraint("Equal", 8, 10))
sketch2.addConstraint(Sketcher.Constraint("Equal", 10, 12))
sketch2.addConstraint(Sketcher.Constraint("Equal", 12, 14))
sketch2.addConstraint(Sketcher.Constraint("Equal", 14, 16))
sketch2.addConstraint(Sketcher.Constraint("Equal", 16, 18))
sketch2.addConstraint(Sketcher.Constraint("Equal", 18, 20))
sketch2.addConstraint(Sketcher.Constraint("Equal", 20, 22))
sketch2.addConstraint(Sketcher.Constraint("Equal", 22, 25))
sketch2.addConstraint(Sketcher.Constraint("Equal", 25, 27))
sketch2.addConstraint(Sketcher.Constraint("Equal", 27, 29))
sketch2.addConstraint(Sketcher.Constraint("Equal", 29, 31))
sketch2.addConstraint(Sketcher.Constraint("Equal", 31, 33))
sketch2.addConstraint(Sketcher.Constraint("Equal", 33, 35))
sketch2.addConstraint(Sketcher.Constraint("Equal", 35, 37))
sketch2.addConstraint(Sketcher.Constraint("Equal", 37, 39))
sketch2.addConstraint(Sketcher.Constraint("Equal", 39, 41))
sketch2.addConstraint(Sketcher.Constraint("Equal", 41, 43))
sketch2.addConstraint(Sketcher.Constraint("Equal", 43, 45))
sketch2.addConstraint(Sketcher.Constraint("Equal", 45, 47))
sketch2.addConstraint(Sketcher.Constraint("Equal", 47, 49))
sketch2.addConstraint(Sketcher.Constraint("Equal", 49, 51))
sketch2.addConstraint(Sketcher.Constraint("Equal", 51, 53))
sketch2.addConstraint(Sketcher.Constraint("Equal", 53, 55))
sketch2.addConstraint(Sketcher.Constraint("Equal", 55, 56))
sketch2.addConstraint(Sketcher.Constraint("Equal", 56, 58))
sketch2.addConstraint(Sketcher.Constraint("Equal", 58, 60))
sketch2.addConstraint(Sketcher.Constraint("Equal", 60, 62))
sketch2.addConstraint(Sketcher.Constraint("Perpendicular", 0, 2))
sketch2.addConstraint(Sketcher.Constraint("Perpendicular", 2, 4))
sketch2.addConstraint(Sketcher.Constraint("Perpendicular", 4, 6))
sketch2.addConstraint(Sketcher.Constraint("Perpendicular", 9, 11))
sketch2.addConstraint(Sketcher.Constraint("Perpendicular", 11, 13))
sketch2.addConstraint(Sketcher.Constraint("Perpendicular", 13, 15))
sketch2.addConstraint(Sketcher.Constraint("Parallel", 6, 17))
sketch2.addConstraint(Sketcher.Constraint("Perpendicular", 17, 19))
sketch2.addConstraint(Sketcher.Constraint("Perpendicular", 19, 21))
sketch2.addConstraint(Sketcher.Constraint("Perpendicular", 21, 23))
sketch2.addConstraint(Sketcher.Constraint("Perpendicular", 15, 24))
sketch2.addConstraint(Sketcher.Constraint("Perpendicular", 24, 26))
sketch2.addConstraint(Sketcher.Constraint("Perpendicular", 26, 28))
sketch2.addConstraint(Sketcher.Constraint("Perpendicular", 28, 30))
sketch2.addConstraint(Sketcher.Constraint("Perpendicular", 32, 34))
sketch2.addConstraint(Sketcher.Constraint("Perpendicular", 34, 36))
sketch2.addConstraint(Sketcher.Constraint("Perpendicular", 36, 38))
sketch2.addConstraint(Sketcher.Constraint("Parallel", 30, 40))
sketch2.addConstraint(Sketcher.Constraint("Perpendicular", 40, 42))
sketch2.addConstraint(Sketcher.Constraint("Perpendicular", 42, 44))
sketch2.addConstraint(Sketcher.Constraint("Perpendicular", 44, 46))
sketch2.addConstraint(Sketcher.Constraint("Parallel", 23, 48))
sketch2.addConstraint(Sketcher.Constraint("Perpendicular", 48, 50))
sketch2.addConstraint(Sketcher.Constraint("Perpendicular", 50, 52))
sketch2.addConstraint(Sketcher.Constraint("Perpendicular", 52, 54))
sketch2.addConstraint(Sketcher.Constraint("Perpendicular", 46, 57))
sketch2.addConstraint(Sketcher.Constraint("Perpendicular", 57, 59))
sketch2.addConstraint(Sketcher.Constraint("Perpendicular", 59, 61))
sketch2.addConstraint(Sketcher.Constraint("Perpendicular", 61, 63))
sketch2.addConstraint(Sketcher.Constraint("Equal", 6, 9))
sketch2.addConstraint(Sketcher.Constraint("Equal", 4, 11))
sketch2.addConstraint(Sketcher.Constraint("Equal", 13, 17))
sketch2.addConstraint(Sketcher.Constraint("Equal", 15, 19))
sketch2.addConstraint(Sketcher.Constraint("Equal", 21, 24))
sketch2.addConstraint(Sketcher.Constraint("Equal", 23, 26))
sketch2.addConstraint(Sketcher.Constraint("Equal", 28, 32))
sketch2.addConstraint(Sketcher.Constraint("Equal", 36, 40))
sketch2.addConstraint(Sketcher.Constraint("Equal", 38, 42))
sketch2.addConstraint(Sketcher.Constraint("Equal", 44, 50))
sketch2.addConstraint(Sketcher.Constraint("Equal", 52, 57))
sketch2.addConstraint(Sketcher.Constraint("Equal", 54, 59))
sketch2.addConstraint(Sketcher.Constraint("Distance", 0, Q("36 mm")))
sketch2.addConstraint(Sketcher.Constraint("Distance", 48, Q("30 mm")))
sketch2.addConstraint(Sketcher.Constraint("Radius", 1, Q("4 mm")))
sketch2.addConstraint(Sketcher.Constraint("Distance", 2, Q("11 mm")))
sketch2.addConstraint(Sketcher.Constraint("Distance", 34, Q("209 mm")))
sketch2.addConstraint(Sketcher.Constraint("DistanceX", -1, 1, 34, 2, Q("887.7 mm")))
sketch2.addConstraint(Sketcher.Constraint("Angle", 0, Q("-37.6797 deg")))
sketch2.addConstraint(Sketcher.Constraint("Angle", 9, Q("124.3202 deg")))
sketch2.addConstraint(Sketcher.Constraint("Angle", 32, Q("-1.6795 deg")))
sketch2.addConstraint(Sketcher.Constraint("DistanceX", -1, 1, 11, 2, Q("539.63 mm")))
sketch2.addConstraint(Sketcher.Constraint("DistanceX", -1, 1, 29, 2, Q("288.22 mm")))
sketch2.addConstraint(Sketcher.Constraint("DistanceY", -1, 1, 8, 3, Q("596.767 mm")))
sketch2.addConstraint(Sketcher.Constraint("DistanceX", -1, 1, 16, 3, Q("1168.208 mm")))
sketch2.addConstraint(Sketcher.Constraint("DistanceY", -1, 1, 18, 3, Q("576.902 mm")))
sketch2.addConstraint(Sketcher.Constraint("DistanceY", -1, 1, 29, 3, Q("960.433 mm")))
sketch2.addConstraint(Sketcher.Constraint("DistanceY", -1, 1, 33, 3, Q("811.908 mm")))
sketch2.addConstraint(Sketcher.Constraint("DistanceX", -1, 1, 47, 3, Q("381.416 mm")))
sketch2.addConstraint(Sketcher.Constraint("DistanceX", -1, 1, 53, 3, Q("1115.872 mm")))
sketch2.addConstraint(Sketcher.Constraint("DistanceY", -1, 1, 58, 3, Q("661.224 mm")))
sketch2.addConstraint(Sketcher.Constraint("DistanceY", -1, 1, 0, 2, Q("932.975 mm")))
sketch2.addConstraint(Sketcher.Constraint("DistanceX", -1, 1, 2, 2, Q("1462.268 mm")))
sketch2.addConstraint(Sketcher.Constraint("DistanceY", -1, 1, 41, 2, Q("868.723 mm")))
sketch2.addConstraint(Sketcher.Constraint("DistanceY", -1, 1, 51, 2, Q("644.877 mm")))
sketch2.addConstraint(Sketcher.Constraint("DistanceX", -1, 1, 58, 2, Q("645.909 mm")))
pocket1 = body.newObject("PartDesign::Pocket", "Pocket")
pocket1.Profile = sketch2
pocket1.Length = 18
pocket1.Reversed = True

doc.recompute()
